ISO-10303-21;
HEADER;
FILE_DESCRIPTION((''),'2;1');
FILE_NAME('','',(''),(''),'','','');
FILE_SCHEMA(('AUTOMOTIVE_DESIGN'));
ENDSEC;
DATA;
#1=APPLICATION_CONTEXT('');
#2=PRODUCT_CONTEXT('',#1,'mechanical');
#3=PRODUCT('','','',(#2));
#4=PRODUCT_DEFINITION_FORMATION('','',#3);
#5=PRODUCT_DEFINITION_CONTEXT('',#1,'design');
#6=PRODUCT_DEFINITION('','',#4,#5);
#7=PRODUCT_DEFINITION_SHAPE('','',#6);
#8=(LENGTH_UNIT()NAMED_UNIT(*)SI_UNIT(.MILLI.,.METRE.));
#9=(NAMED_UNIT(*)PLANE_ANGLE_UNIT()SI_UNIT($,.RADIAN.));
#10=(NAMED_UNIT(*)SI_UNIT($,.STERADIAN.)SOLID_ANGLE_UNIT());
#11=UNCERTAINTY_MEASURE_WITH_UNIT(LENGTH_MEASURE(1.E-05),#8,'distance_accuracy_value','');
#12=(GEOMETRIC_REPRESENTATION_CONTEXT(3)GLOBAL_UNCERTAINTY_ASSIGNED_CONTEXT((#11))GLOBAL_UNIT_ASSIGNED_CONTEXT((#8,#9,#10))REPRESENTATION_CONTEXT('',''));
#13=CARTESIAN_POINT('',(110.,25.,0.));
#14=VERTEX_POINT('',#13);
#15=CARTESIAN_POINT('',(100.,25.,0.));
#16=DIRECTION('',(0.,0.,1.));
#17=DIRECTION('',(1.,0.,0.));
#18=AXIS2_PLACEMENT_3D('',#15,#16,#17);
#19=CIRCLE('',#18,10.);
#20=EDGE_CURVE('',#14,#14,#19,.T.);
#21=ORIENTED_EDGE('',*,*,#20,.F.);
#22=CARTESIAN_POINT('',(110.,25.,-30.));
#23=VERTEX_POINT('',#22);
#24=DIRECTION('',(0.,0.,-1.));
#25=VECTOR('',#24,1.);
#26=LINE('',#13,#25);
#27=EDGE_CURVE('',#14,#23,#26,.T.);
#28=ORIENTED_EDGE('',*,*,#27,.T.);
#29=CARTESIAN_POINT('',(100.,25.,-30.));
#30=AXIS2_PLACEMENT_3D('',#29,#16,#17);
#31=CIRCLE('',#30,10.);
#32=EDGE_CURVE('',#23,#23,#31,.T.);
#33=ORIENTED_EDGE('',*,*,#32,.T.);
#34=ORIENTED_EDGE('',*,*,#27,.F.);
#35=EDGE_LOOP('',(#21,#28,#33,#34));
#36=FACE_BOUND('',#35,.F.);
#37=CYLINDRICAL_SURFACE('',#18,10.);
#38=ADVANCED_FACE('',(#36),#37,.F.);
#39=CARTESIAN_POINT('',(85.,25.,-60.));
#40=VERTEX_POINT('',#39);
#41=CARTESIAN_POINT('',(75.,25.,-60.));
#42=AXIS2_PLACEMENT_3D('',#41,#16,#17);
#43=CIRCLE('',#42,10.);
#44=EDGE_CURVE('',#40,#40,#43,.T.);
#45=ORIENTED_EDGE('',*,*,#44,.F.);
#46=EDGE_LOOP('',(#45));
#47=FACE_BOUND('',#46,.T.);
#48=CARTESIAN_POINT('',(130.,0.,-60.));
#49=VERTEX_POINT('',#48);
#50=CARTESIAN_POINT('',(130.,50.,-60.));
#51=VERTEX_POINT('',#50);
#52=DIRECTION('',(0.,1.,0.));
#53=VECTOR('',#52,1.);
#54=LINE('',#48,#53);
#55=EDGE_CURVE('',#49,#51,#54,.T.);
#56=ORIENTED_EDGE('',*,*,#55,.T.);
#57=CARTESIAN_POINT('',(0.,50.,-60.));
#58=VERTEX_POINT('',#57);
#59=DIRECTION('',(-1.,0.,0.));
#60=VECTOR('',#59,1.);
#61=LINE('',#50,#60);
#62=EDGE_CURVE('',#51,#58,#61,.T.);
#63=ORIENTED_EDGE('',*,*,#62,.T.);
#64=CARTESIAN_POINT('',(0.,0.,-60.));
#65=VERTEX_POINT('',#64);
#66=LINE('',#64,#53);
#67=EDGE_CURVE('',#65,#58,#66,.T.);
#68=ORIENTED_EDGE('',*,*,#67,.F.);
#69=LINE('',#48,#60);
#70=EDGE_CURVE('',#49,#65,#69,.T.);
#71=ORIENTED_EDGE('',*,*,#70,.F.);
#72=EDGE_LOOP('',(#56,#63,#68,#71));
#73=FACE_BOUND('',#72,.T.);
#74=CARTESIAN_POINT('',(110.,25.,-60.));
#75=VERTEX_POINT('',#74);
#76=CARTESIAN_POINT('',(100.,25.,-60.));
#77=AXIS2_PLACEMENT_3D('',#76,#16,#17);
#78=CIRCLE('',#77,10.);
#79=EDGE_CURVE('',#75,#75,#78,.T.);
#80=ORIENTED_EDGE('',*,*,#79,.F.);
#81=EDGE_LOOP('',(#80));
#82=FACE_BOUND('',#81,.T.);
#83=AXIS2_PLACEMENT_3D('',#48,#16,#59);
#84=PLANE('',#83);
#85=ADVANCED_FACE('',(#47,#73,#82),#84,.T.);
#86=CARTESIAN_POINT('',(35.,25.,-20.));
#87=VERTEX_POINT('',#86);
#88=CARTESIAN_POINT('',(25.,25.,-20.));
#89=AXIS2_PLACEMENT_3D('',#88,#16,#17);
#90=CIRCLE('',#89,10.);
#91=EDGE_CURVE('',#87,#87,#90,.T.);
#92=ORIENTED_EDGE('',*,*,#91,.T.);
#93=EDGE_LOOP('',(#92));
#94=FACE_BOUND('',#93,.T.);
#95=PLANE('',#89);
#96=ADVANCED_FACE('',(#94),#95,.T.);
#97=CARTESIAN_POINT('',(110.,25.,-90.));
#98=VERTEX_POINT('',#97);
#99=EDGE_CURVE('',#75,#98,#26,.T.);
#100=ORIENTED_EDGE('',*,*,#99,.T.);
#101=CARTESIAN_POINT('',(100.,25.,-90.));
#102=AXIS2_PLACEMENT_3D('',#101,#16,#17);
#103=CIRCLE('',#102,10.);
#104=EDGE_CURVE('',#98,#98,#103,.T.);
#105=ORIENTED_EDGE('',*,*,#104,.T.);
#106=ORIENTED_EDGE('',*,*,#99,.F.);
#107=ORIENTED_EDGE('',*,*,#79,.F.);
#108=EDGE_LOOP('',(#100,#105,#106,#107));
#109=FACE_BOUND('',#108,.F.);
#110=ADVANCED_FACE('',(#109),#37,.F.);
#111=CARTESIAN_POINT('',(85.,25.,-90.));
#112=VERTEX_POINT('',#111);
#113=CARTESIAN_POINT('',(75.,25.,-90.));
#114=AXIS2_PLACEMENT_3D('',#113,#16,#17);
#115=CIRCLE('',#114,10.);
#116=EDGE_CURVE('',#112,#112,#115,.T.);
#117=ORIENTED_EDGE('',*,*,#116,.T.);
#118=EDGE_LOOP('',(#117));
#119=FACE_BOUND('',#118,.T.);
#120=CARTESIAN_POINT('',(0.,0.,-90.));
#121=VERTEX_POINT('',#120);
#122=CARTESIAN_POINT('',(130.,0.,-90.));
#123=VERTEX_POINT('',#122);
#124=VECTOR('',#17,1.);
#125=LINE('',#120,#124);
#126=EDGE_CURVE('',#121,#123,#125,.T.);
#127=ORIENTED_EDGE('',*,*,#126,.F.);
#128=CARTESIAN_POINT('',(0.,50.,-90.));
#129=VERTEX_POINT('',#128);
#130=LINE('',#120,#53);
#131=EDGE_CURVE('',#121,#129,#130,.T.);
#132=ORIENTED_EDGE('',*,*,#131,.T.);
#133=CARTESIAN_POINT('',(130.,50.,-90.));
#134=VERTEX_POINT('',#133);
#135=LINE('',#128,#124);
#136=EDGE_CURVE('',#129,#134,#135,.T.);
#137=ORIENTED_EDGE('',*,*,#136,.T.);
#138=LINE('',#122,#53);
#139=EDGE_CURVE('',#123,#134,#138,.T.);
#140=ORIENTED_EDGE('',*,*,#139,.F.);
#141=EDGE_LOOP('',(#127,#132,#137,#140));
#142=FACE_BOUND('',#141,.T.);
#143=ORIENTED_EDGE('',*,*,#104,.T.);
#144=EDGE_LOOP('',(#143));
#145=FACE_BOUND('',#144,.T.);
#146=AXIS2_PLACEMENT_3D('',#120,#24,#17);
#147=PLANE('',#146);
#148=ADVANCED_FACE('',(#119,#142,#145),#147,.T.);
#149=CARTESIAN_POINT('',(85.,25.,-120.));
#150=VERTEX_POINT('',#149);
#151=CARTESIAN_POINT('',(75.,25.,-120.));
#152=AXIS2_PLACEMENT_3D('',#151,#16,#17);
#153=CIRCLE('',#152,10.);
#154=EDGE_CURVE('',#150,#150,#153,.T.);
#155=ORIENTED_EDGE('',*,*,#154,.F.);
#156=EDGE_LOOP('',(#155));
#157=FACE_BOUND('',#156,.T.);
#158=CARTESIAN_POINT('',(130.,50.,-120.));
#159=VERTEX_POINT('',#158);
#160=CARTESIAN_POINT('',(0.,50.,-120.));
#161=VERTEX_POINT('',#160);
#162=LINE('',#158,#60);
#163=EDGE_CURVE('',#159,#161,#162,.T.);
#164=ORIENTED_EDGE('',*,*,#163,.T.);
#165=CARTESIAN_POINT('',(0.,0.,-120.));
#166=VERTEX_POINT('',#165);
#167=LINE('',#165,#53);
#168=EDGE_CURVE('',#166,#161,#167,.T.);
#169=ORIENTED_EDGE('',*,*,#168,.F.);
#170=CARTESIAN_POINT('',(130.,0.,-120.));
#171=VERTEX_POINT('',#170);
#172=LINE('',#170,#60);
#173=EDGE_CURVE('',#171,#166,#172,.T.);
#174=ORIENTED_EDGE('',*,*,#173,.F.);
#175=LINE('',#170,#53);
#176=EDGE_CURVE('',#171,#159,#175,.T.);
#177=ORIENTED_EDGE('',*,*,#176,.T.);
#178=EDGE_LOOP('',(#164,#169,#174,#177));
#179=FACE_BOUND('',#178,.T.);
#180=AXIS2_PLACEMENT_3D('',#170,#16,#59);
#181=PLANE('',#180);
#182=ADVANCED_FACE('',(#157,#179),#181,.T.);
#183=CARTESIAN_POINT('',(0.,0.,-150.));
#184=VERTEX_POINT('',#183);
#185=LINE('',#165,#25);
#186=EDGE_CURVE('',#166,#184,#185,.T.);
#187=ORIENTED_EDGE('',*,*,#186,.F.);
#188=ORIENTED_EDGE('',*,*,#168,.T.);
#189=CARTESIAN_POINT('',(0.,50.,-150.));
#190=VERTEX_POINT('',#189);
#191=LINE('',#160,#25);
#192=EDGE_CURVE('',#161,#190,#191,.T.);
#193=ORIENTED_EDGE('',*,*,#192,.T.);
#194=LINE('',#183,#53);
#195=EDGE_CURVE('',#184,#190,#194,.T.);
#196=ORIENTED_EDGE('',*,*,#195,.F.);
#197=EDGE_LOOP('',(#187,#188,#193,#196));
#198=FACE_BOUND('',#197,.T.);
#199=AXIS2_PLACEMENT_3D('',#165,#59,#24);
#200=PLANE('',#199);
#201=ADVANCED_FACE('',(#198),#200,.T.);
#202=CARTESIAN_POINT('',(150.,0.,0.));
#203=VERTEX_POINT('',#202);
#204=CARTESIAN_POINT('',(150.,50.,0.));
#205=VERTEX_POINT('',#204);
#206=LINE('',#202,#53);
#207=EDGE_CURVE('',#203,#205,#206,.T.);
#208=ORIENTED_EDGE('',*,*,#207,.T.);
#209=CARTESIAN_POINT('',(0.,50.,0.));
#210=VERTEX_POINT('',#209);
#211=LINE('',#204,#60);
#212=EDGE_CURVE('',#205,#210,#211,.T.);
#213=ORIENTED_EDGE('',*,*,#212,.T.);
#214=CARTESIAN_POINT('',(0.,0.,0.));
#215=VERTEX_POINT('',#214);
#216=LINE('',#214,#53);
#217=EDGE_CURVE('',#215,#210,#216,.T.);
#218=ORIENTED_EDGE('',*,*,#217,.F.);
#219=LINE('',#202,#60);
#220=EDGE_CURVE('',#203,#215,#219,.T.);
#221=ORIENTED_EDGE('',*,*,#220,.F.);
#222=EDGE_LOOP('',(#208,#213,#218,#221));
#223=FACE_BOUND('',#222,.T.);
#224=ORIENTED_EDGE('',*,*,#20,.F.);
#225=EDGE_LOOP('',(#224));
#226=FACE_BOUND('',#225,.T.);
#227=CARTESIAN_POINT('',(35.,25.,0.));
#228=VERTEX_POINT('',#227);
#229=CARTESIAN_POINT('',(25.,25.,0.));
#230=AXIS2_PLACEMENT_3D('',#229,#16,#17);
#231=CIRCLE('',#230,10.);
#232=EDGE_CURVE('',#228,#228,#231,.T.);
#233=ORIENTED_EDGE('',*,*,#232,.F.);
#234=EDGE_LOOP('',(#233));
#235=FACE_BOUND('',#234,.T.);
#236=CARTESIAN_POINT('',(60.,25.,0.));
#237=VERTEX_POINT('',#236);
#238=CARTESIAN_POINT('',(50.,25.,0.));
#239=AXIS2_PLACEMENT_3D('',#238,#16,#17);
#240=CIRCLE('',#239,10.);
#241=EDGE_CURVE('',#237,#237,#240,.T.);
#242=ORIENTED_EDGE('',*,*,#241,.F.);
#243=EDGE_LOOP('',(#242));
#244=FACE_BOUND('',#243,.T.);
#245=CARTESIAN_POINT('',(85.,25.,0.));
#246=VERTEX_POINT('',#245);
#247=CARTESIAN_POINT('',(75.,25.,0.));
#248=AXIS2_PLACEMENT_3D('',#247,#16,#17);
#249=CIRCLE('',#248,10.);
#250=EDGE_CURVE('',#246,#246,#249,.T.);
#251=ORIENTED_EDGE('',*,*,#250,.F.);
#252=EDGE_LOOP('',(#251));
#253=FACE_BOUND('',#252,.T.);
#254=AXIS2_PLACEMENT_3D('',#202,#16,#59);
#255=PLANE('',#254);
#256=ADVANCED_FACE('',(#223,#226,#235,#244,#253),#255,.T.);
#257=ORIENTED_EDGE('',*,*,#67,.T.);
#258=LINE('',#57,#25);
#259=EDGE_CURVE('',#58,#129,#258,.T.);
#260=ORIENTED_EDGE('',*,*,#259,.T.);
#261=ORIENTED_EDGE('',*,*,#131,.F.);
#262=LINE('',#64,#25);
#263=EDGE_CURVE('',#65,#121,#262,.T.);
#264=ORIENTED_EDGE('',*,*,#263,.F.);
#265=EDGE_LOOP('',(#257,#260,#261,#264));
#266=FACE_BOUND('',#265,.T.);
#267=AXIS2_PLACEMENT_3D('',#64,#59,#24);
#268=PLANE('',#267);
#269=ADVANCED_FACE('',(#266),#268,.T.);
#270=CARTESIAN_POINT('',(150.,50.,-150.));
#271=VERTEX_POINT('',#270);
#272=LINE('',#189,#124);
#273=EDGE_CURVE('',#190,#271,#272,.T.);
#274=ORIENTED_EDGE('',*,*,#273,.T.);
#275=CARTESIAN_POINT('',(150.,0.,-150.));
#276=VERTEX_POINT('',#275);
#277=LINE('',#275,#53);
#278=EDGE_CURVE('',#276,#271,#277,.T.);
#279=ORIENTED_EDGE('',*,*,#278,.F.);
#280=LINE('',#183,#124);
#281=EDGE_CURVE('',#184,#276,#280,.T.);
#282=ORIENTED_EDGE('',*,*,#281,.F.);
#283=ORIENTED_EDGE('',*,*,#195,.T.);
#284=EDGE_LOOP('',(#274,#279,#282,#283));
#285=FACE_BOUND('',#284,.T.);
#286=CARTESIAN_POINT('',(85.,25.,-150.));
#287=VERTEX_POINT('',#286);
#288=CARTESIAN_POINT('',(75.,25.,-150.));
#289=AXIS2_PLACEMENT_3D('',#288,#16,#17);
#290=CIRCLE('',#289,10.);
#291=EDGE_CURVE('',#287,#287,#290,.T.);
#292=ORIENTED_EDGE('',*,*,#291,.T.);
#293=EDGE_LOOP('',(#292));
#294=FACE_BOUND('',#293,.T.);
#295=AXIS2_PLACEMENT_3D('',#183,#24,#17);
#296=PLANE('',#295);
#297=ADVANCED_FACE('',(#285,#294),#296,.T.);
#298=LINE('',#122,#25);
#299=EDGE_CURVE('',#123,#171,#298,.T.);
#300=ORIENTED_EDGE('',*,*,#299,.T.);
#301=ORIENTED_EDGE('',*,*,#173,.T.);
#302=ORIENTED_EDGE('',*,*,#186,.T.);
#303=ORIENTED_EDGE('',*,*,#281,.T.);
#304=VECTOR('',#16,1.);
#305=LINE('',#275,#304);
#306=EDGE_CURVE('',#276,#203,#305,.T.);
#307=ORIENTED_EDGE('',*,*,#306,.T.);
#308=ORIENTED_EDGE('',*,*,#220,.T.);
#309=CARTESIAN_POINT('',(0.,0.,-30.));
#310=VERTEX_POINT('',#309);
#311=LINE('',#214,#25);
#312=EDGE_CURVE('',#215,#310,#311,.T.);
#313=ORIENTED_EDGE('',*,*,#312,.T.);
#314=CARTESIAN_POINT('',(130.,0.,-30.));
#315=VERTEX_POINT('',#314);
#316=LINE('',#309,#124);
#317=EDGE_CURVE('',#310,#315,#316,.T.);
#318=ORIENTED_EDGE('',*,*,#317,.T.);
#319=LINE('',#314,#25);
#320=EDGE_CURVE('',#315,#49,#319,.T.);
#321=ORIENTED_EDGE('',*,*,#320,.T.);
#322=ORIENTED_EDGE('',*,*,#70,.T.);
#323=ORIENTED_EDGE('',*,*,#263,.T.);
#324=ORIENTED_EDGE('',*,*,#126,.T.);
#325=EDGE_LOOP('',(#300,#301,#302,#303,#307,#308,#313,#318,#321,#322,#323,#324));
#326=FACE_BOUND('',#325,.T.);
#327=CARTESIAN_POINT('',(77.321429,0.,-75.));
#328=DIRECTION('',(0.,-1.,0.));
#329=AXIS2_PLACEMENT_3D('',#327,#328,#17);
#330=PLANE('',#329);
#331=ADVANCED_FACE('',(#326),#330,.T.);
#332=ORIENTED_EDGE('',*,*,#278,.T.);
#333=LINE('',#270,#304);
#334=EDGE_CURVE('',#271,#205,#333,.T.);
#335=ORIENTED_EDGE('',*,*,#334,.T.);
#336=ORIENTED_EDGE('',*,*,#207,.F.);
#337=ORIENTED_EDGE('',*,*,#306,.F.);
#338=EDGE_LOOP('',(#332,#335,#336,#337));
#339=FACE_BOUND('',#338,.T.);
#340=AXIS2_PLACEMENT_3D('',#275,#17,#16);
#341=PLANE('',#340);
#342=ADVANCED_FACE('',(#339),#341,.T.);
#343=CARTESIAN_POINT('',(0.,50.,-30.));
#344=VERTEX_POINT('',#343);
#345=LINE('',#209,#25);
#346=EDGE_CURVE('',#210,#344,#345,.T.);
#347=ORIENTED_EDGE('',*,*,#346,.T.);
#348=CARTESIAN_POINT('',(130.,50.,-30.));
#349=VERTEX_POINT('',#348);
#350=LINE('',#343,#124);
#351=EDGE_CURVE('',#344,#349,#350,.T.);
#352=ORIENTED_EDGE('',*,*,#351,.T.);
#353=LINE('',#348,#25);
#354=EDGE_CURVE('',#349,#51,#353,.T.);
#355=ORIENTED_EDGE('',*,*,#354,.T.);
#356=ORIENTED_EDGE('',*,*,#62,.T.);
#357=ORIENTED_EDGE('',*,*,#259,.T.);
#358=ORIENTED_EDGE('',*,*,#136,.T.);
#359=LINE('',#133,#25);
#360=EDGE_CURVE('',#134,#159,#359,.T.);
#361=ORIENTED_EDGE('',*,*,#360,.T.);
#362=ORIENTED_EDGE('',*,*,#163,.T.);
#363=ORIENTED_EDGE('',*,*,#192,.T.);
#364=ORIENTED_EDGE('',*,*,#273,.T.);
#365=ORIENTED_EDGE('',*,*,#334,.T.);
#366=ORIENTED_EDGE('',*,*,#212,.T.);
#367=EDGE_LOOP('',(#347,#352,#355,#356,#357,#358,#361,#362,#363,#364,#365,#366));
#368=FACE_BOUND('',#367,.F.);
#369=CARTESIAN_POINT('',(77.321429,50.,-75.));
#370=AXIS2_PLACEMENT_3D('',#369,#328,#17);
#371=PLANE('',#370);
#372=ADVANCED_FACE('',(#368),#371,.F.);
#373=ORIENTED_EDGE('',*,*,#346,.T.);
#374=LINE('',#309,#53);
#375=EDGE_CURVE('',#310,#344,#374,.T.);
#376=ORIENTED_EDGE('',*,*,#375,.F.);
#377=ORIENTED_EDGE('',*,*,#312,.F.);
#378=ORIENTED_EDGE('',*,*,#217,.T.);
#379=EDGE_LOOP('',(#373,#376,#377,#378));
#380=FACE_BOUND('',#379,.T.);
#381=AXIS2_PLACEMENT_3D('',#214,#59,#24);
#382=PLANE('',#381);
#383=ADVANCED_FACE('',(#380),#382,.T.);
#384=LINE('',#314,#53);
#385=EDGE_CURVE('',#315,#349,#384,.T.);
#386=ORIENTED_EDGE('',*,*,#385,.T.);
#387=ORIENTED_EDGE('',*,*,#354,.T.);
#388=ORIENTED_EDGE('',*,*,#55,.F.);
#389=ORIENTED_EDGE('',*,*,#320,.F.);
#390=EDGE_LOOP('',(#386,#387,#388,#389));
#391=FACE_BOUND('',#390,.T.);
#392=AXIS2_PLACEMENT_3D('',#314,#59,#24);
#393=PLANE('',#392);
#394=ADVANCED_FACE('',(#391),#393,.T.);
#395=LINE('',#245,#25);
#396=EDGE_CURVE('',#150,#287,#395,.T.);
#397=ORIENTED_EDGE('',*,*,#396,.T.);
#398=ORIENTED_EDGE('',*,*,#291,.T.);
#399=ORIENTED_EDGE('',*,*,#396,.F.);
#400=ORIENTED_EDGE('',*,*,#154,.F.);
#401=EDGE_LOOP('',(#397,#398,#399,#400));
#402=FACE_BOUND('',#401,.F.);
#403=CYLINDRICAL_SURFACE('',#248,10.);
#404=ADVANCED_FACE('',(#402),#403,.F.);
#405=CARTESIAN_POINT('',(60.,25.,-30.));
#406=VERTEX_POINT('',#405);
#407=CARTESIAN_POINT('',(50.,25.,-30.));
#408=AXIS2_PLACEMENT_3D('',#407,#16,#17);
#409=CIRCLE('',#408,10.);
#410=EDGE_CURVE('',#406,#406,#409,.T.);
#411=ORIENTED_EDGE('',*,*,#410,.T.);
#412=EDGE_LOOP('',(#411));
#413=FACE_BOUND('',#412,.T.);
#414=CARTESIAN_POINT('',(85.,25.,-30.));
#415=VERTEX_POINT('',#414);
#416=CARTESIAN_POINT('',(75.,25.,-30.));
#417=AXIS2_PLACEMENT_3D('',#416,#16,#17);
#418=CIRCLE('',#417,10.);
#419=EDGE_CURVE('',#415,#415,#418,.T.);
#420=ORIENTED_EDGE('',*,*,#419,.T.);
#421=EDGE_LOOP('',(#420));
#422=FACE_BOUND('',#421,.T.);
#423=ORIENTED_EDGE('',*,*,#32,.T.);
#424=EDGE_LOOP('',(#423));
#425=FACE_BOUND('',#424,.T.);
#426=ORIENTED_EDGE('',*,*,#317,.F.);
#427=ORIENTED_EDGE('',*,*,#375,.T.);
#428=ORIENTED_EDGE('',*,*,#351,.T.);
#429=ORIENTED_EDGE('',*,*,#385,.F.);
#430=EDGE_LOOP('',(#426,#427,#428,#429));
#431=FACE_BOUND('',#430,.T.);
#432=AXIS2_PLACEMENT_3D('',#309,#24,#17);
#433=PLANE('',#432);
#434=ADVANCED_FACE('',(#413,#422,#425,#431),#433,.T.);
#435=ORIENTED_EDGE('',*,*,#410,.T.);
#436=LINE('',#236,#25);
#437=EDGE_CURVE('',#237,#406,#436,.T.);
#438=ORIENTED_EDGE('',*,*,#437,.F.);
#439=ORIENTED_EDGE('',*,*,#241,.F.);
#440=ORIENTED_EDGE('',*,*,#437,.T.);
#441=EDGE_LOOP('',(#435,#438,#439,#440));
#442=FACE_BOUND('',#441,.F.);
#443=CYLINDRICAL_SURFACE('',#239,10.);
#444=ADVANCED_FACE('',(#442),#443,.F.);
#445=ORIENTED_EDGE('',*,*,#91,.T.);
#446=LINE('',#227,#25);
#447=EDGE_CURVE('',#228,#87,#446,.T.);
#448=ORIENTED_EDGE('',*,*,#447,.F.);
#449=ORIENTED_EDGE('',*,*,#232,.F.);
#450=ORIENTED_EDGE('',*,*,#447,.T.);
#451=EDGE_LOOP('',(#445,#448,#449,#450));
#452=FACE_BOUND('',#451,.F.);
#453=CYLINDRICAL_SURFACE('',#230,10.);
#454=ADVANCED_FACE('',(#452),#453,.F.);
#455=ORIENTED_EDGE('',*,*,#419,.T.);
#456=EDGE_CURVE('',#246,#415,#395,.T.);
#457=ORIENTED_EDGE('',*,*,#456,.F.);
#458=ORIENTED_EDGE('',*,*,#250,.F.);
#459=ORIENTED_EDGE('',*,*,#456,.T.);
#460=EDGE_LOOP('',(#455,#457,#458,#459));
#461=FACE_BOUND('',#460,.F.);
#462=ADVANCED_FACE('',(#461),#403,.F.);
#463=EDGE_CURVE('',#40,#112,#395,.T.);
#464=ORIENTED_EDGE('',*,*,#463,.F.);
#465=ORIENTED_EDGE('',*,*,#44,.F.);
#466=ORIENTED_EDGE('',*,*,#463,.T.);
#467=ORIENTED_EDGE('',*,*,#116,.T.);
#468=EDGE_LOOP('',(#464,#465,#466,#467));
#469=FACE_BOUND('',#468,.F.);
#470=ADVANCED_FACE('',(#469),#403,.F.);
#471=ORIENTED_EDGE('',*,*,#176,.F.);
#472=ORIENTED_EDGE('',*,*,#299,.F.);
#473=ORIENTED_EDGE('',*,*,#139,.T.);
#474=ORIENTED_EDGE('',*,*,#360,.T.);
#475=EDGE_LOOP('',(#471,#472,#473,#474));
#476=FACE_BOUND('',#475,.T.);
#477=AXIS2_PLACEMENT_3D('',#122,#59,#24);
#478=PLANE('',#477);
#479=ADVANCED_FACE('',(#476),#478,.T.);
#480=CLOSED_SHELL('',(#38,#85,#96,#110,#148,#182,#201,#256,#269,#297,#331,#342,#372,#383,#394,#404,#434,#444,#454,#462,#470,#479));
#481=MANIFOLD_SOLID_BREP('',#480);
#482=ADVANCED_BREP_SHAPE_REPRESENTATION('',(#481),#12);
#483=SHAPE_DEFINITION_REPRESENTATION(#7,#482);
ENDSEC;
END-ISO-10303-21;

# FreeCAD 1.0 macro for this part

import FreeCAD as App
import Part
import Sketcher

V = App.Vector
Q = App.Units.Quantity


def add_polygon(sketch, points):
    """Adds a closed chain of lines whose ends are joined by coincident constraints."""
    first, n = sketch.GeometryCount, len(points)
    for a, b in zip(points, points[1:] + points[:1]):
        sketch.addGeometry(Part.LineSegment(App.Vector(*a, 0), App.Vector(*b, 0)), False)
    for i in range(n):
        sketch.addConstraint(Sketcher.Constraint("Coincident", first + i, 2, first + (i + 1) % n, 1))

doc = App.newDocument("Part")
body = doc.addObject("PartDesign::Body", "Body")

sketch1 = body.newObject("Sketcher::SketchObject", "Sketch")
sketch1.AttachmentSupport = (doc.getObject("XZ_Plane"), [""])
sketch1.MapMode = "FlatFace"
add_polygon(sketch1, [(150, 0), (0, 0), (0, -30), (130, -30), (130, -60), (0, -60), (0, -90), (130, -90), (130, -120), (0, -120), (0, -150), (150, -150)])
sketch1.addConstraint([
    Sketcher.Constraint("Horizontal", 0),
    Sketcher.Constraint("Vertical", 1),
    Sketcher.Constraint("Horizontal", 2),
    Sketcher.Constraint("Vertical", 3),
    Sketcher.Constraint("Horizontal", 4),
    Sketcher.Constraint("Vertical", 5),
    Sketcher.Constraint("Horizontal", 6),
    Sketcher.Constraint("Vertical", 7),
    Sketcher.Constraint("Horizontal", 8),
    Sketcher.Constraint("Vertical", 9),
    Sketcher.Constraint("Horizontal", 10),
    Sketcher.Constraint("Vertical", 11),
    Sketcher.Constraint("Coincident", 0, 2, -1, 1),
    Sketcher.Constraint("PointOnObject", 4, 2, -2),
    Sketcher.Constraint("PointOnObject", 8, 2, -2),
    Sketcher.Constraint("Vertical", 3, 2, 6, 2),
    Sketcher.Constraint("Equal", 1, 3),
    Sketcher.Constraint("Equal", 3, 5),
    Sketcher.Constraint("Equal", 5, 7),
    Sketcher.Constraint("Equal", 7, 9),
    Sketcher.Constraint("Equal", 10, 11),
    Sketcher.Constraint("DistanceX", 0, 2, 0, 1, Q("150 mm")),
    Sketcher.Constraint("DistanceX", 2, 1, 2, 2, Q("130 mm")),
])
pad1 = body.newObject("PartDesign::Pad", "Pad")
pad1.Profile = sketch1
pad1.Length = 50
pad1.Reversed = True

sketch2 = body.newObject("Sketcher::SketchObject", "Sketch001")
sketch2.AttachmentSupport = (doc.getObject("XY_Plane"), [""])
sketch2.MapMode = "FlatFace"
sketch2.addGeometry(Part.Circle(V(25, 25, 0), V(0, 0, 1), 10), False)
sketch2.addConstraint([
    Sketcher.Constraint("Diameter", 0, Q("20 mm")),
    Sketcher.Constraint("DistanceX", -1, 1, 0, 3, Q("25 mm")),
    Sketcher.Constraint("DistanceY", -1, 1, 0, 3, Q("25 mm")),
])
pocket1 = body.newObject("PartDesign::Pocket", "Pocket")
pocket1.Profile = sketch2
pocket1.Length = 20

sketch3 = body.newObject("Sketcher::SketchObject", "Sketch002")
sketch3.AttachmentSupport = (doc.getObject("XY_Plane"), [""])
sketch3.MapMode = "FlatFace"
sketch3.addGeometry(Part.Circle(V(50, 25, 0), V(0, 0, 1), 10), False)
sketch3.addConstraint([
    Sketcher.Constraint("Diameter", 0, Q("20 mm")),
    Sketcher.Constraint("DistanceX", -1, 1, 0, 3, Q("50 mm")),
    Sketcher.Constraint("DistanceY", -1, 1, 0, 3, Q("25 mm")),
])
pocket2 = body.newObject("PartDesign::Pocket", "Pocket001")
pocket2.Profile = sketch3
pocket2.Length = 30

sketch4 = body.newObject("Sketcher::SketchObject", "Sketch003")
sketch4.AttachmentSupport = (doc.getObject("XY_Plane"), [""])
sketch4.MapMode = "FlatFace"
sketch4.addGeometry(Part.Circle(V(75, 25, 0), V(0, 0, 1), 10), False)
sketch4.addConstraint([
    Sketcher.Constraint("Diameter", 0, Q("20 mm")),
    Sketcher.Constraint("DistanceX", -1, 1, 0, 3, Q("75 mm")),
    Sketcher.Constraint("DistanceY", -1, 1, 0, 3, Q("25 mm")),
])
pocket3 = body.newObject("PartDesign::Pocket", "Pocket002")
pocket3.Profile = sketch4
pocket3.Type = "ThroughAll"

sketch5 = body.newObject("Sketcher::SketchObject", "Sketch004")
sketch5.AttachmentSupport = (doc.getObject("XY_Plane"), [""])
sketch5.MapMode = "FlatFace"
sketch5.addGeometry(Part.Circle(V(100, 25, 0), V(0, 0, 1), 10), False)
sketch5.addConstraint([
    Sketcher.Constraint("Diameter", 0, Q("20 mm")),
    Sketcher.Constraint("DistanceX", -1, 1, 0, 3, Q("100 mm")),
    Sketcher.Constraint("DistanceY", -1, 1, 0, 3, Q("25 mm")),
])
pocket4 = body.newObject("PartDesign::Pocket", "Pocket003")
pocket4.Profile = sketch5
pocket4.Length = 90

doc.recompute()
